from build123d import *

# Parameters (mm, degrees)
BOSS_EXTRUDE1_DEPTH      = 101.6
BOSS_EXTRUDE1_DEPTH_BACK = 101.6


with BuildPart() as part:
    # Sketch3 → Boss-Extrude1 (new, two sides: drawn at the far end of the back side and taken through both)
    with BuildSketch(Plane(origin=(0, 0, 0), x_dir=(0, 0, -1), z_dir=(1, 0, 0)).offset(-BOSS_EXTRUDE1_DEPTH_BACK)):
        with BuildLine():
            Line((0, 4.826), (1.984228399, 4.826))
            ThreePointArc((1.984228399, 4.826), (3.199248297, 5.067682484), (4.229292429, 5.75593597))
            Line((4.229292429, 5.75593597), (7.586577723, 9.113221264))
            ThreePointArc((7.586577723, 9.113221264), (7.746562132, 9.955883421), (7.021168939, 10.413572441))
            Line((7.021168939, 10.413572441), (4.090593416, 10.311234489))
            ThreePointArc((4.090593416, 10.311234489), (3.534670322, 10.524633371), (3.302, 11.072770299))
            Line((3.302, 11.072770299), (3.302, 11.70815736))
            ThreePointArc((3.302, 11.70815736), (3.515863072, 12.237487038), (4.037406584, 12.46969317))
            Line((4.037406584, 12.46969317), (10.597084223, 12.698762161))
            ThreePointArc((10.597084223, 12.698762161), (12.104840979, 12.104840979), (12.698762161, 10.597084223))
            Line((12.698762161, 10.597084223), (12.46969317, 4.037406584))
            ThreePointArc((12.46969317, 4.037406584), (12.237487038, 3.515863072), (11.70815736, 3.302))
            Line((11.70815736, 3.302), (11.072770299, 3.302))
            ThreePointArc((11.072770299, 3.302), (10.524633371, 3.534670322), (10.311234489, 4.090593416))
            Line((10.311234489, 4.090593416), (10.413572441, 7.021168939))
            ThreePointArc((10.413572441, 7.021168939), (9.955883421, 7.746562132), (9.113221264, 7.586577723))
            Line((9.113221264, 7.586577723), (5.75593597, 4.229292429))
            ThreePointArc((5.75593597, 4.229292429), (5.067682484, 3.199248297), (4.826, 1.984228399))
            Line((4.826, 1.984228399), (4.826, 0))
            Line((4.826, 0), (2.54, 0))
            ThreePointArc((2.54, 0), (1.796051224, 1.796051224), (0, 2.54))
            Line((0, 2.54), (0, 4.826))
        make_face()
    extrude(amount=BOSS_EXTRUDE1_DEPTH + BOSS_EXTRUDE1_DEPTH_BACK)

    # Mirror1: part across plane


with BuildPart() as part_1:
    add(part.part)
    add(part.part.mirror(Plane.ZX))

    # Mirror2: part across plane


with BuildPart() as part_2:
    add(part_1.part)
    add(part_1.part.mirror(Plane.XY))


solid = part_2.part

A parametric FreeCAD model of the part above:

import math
import FreeCAD as App
import Part
import Sketcher
Q = App.Units.Quantity

doc = App.newDocument("Part")
body = doc.addObject("PartDesign::Body", "Body")

sketch1 = doc.addObject("Sketcher::SketchObject", "Sketch")
body.addObject(sketch1)
sketch1.AttachmentSupport = (doc.YZ_Plane, [""])
sketch1.MapMode = "FlatFace"
sketch1.addGeometry(Part.LineSegment(App.Vector(4.8, -2, 0), App.Vector(4.8, 0, 0)), False)
sketch1.addGeometry(Part.LineSegment(App.Vector(4.8, 0, 0), App.Vector(2.5, 0, 0)), False)
sketch1.addGeometry(Part.ArcOfCircle(Part.Circle(App.Vector(0, 0, 0), App.Vector(0, 0, 1), 2.5), math.radians(-90), math.radians(0)), False)
sketch1.addGeometry(Part.LineSegment(App.Vector(0, -2.5, 0), App.Vector(0, -4.8, 0)), False)
sketch1.addGeometry(Part.LineSegment(App.Vector(0, -4.8, 0), App.Vector(2, -4.8, 0)), False)
sketch1.addGeometry(Part.ArcOfCircle(Part.Circle(App.Vector(2, -8, 0), App.Vector(0, 0, 1), 3.2), math.radians(45), math.radians(90)), False)
sketch1.addGeometry(Part.LineSegment(App.Vector(4.2, -5.8, 0), App.Vector(7.6, -9.1, 0)), False)
sketch1.addGeometry(Part.ArcOfCircle(Part.Circle(App.Vector(7, -9.7, 0), App.Vector(0, 0, 1), 0.8), math.radians(-92), math.radians(45)), False)
sketch1.addGeometry(Part.LineSegment(App.Vector(7, -10.4, 0), App.Vector(4.1, -10.3, 0)), False)
sketch1.addGeometry(Part.ArcOfCircle(Part.Circle(App.Vector(4.1, -11.1, 0), App.Vector(0, 0, 1), 0.8), math.radians(88), math.radians(180)), False)
sketch1.addGeometry(Part.LineSegment(App.Vector(3.3, -11.1, 0), App.Vector(3.3, -11.7, 0)), False)
sketch1.addGeometry(Part.ArcOfCircle(Part.Circle(App.Vector(4.1, -11.7, 0), App.Vector(0, 0, 1), 0.8), math.radians(180), math.radians(268)), False)
sketch1.addGeometry(Part.LineSegment(App.Vector(4, -12.5, 0), App.Vector(10.6, -12.7, 0)), False)
sketch1.addGeometry(Part.ArcOfCircle(Part.Circle(App.Vector(10.7, -10.7, 0), App.Vector(0, 0, 1), 2), math.radians(-92), math.radians(2)), False)
sketch1.addGeometry(Part.LineSegment(App.Vector(12.7, -10.6, 0), App.Vector(12.5, -4, 0)), False)
sketch1.addGeometry(Part.ArcOfCircle(Part.Circle(App.Vector(11.7, -4.1, 0), App.Vector(0, 0, 1), 0.8), math.radians(2), math.radians(90)), False)
sketch1.addGeometry(Part.LineSegment(App.Vector(11.7, -3.3, 0), App.Vector(11.1, -3.3, 0)), False)
sketch1.addGeometry(Part.ArcOfCircle(Part.Circle(App.Vector(11.1, -4.1, 0), App.Vector(0, 0, 1), 0.8), math.radians(90), math.radians(182)), False)
sketch1.addGeometry(Part.LineSegment(App.Vector(10.3, -4.1, 0), App.Vector(10.4, -7, 0)), False)
sketch1.addGeometry(Part.ArcOfCircle(Part.Circle(App.Vector(9.7, -7, 0), App.Vector(0, 0, 1), 0.8), math.radians(-135), math.radians(2)), False)
sketch1.addGeometry(Part.LineSegment(App.Vector(9.1, -7.6, 0), App.Vector(5.8, -4.2, 0)), False)
sketch1.addGeometry(Part.ArcOfCircle(Part.Circle(App.Vector(8, -2, 0), App.Vector(0, 0, 1), 3.2), math.radians(180), math.radians(225)), False)
sketch1.addConstraint(Sketcher.Constraint("Coincident", 0, 2, 1, 1))
sketch1.addConstraint(Sketcher.Constraint("Coincident", 1, 2, 2, 2))
sketch1.addConstraint(Sketcher.Constraint("Coincident", 2, 1, 3, 1))
sketch1.addConstraint(Sketcher.Constraint("Coincident", 3, 2, 4, 1))
sketch1.addConstraint(Sketcher.Constraint("Tangent", 4, 2, 5, 2))
sketch1.addConstraint(Sketcher.Constraint("Tangent", 5, 1, 6, 1))
sketch1.addConstraint(Sketcher.Constraint("Tangent", 6, 2, 7, 2))
sketch1.addConstraint(Sketcher.Constraint("Tangent", 7, 1, 8, 1))
sketch1.addConstraint(Sketcher.Constraint("Tangent", 8, 2, 9, 1))
sketch1.addConstraint(Sketcher.Constraint("Tangent", 9, 2, 10, 1))
sketch1.addConstraint(Sketcher.Constraint("Tangent", 10, 2, 11, 1))
sketch1.addConstraint(Sketcher.Constraint("Tangent", 11, 2, 12, 1))
sketch1.addConstraint(Sketcher.Constraint("Tangent", 12, 2, 13, 1))
sketch1.addConstraint(Sketcher.Constraint("Tangent", 13, 2, 14, 1))
sketch1.addConstraint(Sketcher.Constraint("Tangent", 14, 2, 15, 1))
sketch1.addConstraint(Sketcher.Constraint("Tangent", 15, 2, 16, 1))
sketch1.addConstraint(Sketcher.Constraint("Tangent", 16, 2, 17, 1))
sketch1.addConstraint(Sketcher.Constraint("Tangent", 17, 2, 18, 1))
sketch1.addConstraint(Sketcher.Constraint("Tangent", 18, 2, 19, 2))
sketch1.addConstraint(Sketcher.Constraint("Tangent", 19, 1, 20, 1))
sketch1.addConstraint(Sketcher.Constraint("Tangent", 20, 2, 21, 2))
sketch1.addConstraint(Sketcher.Constraint("Tangent", 21, 1, 0, 1))
sketch1.addConstraint(Sketcher.Constraint("Vertical", 0))
sketch1.addConstraint(Sketcher.Constraint("Horizontal", 1))
sketch1.addConstraint(Sketcher.Constraint("Vertical", 3))
sketch1.addConstraint(Sketcher.Constraint("Horizontal", 4))
sketch1.addConstraint(Sketcher.Constraint("Vertical", 10))
sketch1.addConstraint(Sketcher.Constraint("Horizontal", 16))
sketch1.addConstraint(Sketcher.Constraint("Coincident", 2, 3, -1, 1))
sketch1.addConstraint(Sketcher.Constraint("Equal", 7, 9))
sketch1.addConstraint(Sketcher.Constraint("Equal", 9, 11))
sketch1.addConstraint(Sketcher.Constraint("Equal", 11, 15))
sketch1.addConstraint(Sketcher.Constraint("Equal", 15, 17))
sketch1.addConstraint(Sketcher.Constraint("Equal", 17, 19))
sketch1.addConstraint(Sketcher.Constraint("Equal", 5, 21))
sketch1.addConstraint(Sketcher.Constraint("PointOnObject", 0, 2, -1))
sketch1.addConstraint(Sketcher.Constraint("PointOnObject", 2, 1, -2))
sketch1.addConstraint(Sketcher.Constraint("Parallel", 8, 12))
sketch1.addConstraint(Sketcher.Constraint("Parallel", 14, 18))
sketch1.addConstraint(Sketcher.Constraint("Parallel", 6, 20))
sketch1.addConstraint(Sketcher.Constraint("Equal", 4, 0))
sketch1.addConstraint(Sketcher.Constraint("Equal", 1, 3))
sketch1.addConstraint(Sketcher.Constraint("Equal", 16, 10))
sketch1.addConstraint(Sketcher.Constraint("Equal", 12, 14))
sketch1.addConstraint(Sketcher.Constraint("Equal", 8, 18))
sketch1.addConstraint(Sketcher.Constraint("Equal", 6, 20))
sketch1.addConstraint(Sketcher.Constraint("Radius", 2, Q("0.1 in")))
sketch1.addConstraint(Sketcher.Constraint("Radius", 7, Q("0.03 in")))
sketch1.addConstraint(Sketcher.Constraint("Radius", 13, Q("0.08 in")))
sketch1.addConstraint(Sketcher.Constraint("Angle", 6, Q("-45 deg")))
sketch1.addConstraint(Sketcher.Constraint("Angle", 8, Q("178 deg")))
sketch1.addConstraint(Sketcher.Constraint("Radius", 5, Q("0.125 in")))
sketch1.addConstraint(Sketcher.Constraint("DistanceX", 1, 2, 1, 1, Q("0.09 in")))
sketch1.addConstraint(Sketcher.Constraint("DistanceX", -1, 1, 9, 3, Q("0.16 in")))
sketch1.addConstraint(Sketcher.Constraint("DistanceX", -1, 1, 13, 3, Q("0.42 in")))
sketch1.addConstraint(Sketcher.Constraint("DistanceX", 4, 1, 4, 2, 1.984228))
sketch1.addConstraint(Sketcher.Constraint("DistanceY", 7, 3, 5, 1, 3.896101))
pad1 = doc.addObject("PartDesign::Pad", "Pad")
body.addObject(pad1)
pad1.Profile = sketch1
pad1.Type = "TwoLengths"
pad1.Length = Q("4 in")
pad1.Length2 = Q("4 in")
body2 = doc.addObject("PartDesign::Body", "Body001")
doc.recompute()

body2.BaseFeature = body
doc.recompute()

mirroring = doc.addObject("Part::Mirroring", "Mirroring")
mirroring.Source = body
mirroring.Base = App.Vector(0, 0, 0)
mirroring.Normal = App.Vector(0, 1, 0)
body3 = doc.addObject("PartDesign::Body", "Body002")
body3.BaseFeature = mirroring
boolean = doc.addObject("PartDesign::Boolean", "Boolean")
body2.addObject(boolean)
boolean.Type = "Fuse"
boolean.addObjects([body3])
doc.recompute()
body4 = doc.addObject("PartDesign::Body", "Body003")
doc.recompute()

body4.BaseFeature = body2
doc.recompute()

mirroring2 = doc.addObject("Part::Mirroring", "Mirroring001")
mirroring2.Source = body2
mirroring2.Base = App.Vector(0, 0, 0)
mirroring2.Normal = App.Vector(0, 0, 1)
body5 = doc.addObject("PartDesign::Body", "Body004")
body5.BaseFeature = mirroring2
boolean2 = doc.addObject("PartDesign::Boolean", "Boolean001")
body4.addObject(boolean2)
boolean2.Type = "Fuse"
boolean2.addObjects([body5])
doc.recompute()
mirroring.Visibility = False
mirroring2.Visibility = False

doc.recompute()
